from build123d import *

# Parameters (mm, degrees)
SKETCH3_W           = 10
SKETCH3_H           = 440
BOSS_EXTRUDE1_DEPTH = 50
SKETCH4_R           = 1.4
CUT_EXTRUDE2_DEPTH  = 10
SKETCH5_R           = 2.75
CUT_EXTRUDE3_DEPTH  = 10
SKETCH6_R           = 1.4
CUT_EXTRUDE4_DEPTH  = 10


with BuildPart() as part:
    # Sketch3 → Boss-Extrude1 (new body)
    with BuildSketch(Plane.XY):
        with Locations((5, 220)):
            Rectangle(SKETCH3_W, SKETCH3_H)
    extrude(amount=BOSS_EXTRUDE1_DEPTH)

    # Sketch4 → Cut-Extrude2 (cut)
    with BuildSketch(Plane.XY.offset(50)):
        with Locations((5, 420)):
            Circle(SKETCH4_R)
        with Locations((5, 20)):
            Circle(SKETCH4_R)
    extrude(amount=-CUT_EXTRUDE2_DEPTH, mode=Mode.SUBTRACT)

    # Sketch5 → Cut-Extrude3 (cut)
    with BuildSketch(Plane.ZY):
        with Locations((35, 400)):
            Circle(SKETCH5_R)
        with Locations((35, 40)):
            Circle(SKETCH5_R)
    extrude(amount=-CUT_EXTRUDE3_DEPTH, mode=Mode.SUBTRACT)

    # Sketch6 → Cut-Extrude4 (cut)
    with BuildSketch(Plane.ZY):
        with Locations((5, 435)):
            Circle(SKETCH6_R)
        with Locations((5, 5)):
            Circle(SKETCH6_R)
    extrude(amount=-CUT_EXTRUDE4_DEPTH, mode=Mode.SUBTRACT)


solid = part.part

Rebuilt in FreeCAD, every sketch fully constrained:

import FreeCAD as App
import Part
import Sketcher

V = App.Vector

doc = App.newDocument("Part")
params = doc.addObject("Spreadsheet::Sheet", "Params")
for row, (alias, value) in enumerate([
    ("sketch1_width", "10 mm"),
    ("sketch1_height", "440 mm"),
    ("pad1_length", "50 mm"),
    ("sketch2_diameter", "2.8 mm"),
    ("pocket1_length", "10 mm"),
    ("sketch3_diameter", "5.5 mm"),
    ("pocket2_length", "10 mm"),
    ("sketch4_diameter", "2.8 mm"),
    ("pocket3_length", "10 mm"),
], start=1):
    params.set(f"A{row}", alias)
    params.set(f"B{row}", "=" + value)
    params.setAlias(f"B{row}", alias)

body = doc.addObject("PartDesign::Body", "Body")

# Sketch on XY plane
sketch1 = body.newObject("Sketcher::SketchObject", "Sketch")
sketch1.AttachmentSupport = (doc.getObject("XY_Plane"), [""])
sketch1.MapMode = "FlatFace"
sketch1.addGeometry([
    Part.LineSegment(V(0, 440, 0), V(0, 0, 0)),
    Part.LineSegment(V(0, 0, 0), V(10, 0, 0)),
    Part.LineSegment(V(10, 0, 0), V(10, 440, 0)),
    Part.LineSegment(V(10, 440, 0), V(0, 440, 0)),
], False)
sketch1.addConstraint([
    Sketcher.Constraint("Coincident", 0, 2, 1, 1),
    Sketcher.Constraint("Coincident", 1, 2, 2, 1),
    Sketcher.Constraint("Coincident", 2, 2, 3, 1),
    Sketcher.Constraint("Coincident", 3, 2, 0, 1),
    Sketcher.Constraint("Vertical", 0),
    Sketcher.Constraint("Horizontal", 1),
    Sketcher.Constraint("Vertical", 2),
    Sketcher.Constraint("Horizontal", 3),
    Sketcher.Constraint("Coincident", 0, 2, -1, 1),
    Sketcher.Constraint("DistanceX", 1, 1, 1, 2, 10.0),
    Sketcher.Constraint("DistanceY", 0, 2, 0, 1, 440.0),
])
sketch1.setExpression("Constraints[9]", "Params.sketch1_width")
sketch1.setExpression("Constraints[10]", "Params.sketch1_height")
pad1 = body.newObject("PartDesign::Pad", "Pad")
pad1.Profile = sketch1
pad1.setExpression("Length", "Params.pad1_length")

# Sketch on XY plane
sketch2 = body.newObject("Sketcher::SketchObject", "Sketch001")
sketch2.AttachmentSupport = (doc.getObject("XY_Plane"), [""])
sketch2.MapMode = "FlatFace"
sketch2.AttachmentOffset = App.Placement(V(0, 0, 50), App.Rotation())
sketch2.addGeometry([
    Part.Circle(V(5, 420, 0), V(0, 0, 1), 1.4),
    Part.Circle(V(5, 20, 0), V(0, 0, 1), 1.4),
], False)
sketch2.addConstraint([
    Sketcher.Constraint("Equal", 0, 1),
    Sketcher.Constraint("Vertical", 0, 3, 1, 3),
    Sketcher.Constraint("Diameter", 0, 2.8),
    Sketcher.Constraint("DistanceX", -1, 1, 0, 3, 5.0),
    Sketcher.Constraint("DistanceY", -1, 1, 0, 3, 420.0),
    Sketcher.Constraint("DistanceY", -1, 1, 1, 3, 20.0),
])
sketch2.setExpression("Constraints[2]", "Params.sketch2_diameter")
pocket1 = body.newObject("PartDesign::Pocket", "Pocket")
pocket1.Profile = sketch2
pocket1.setExpression("Length", "Params.pocket1_length")

# Sketch on YZ plane
sketch3 = body.newObject("Sketcher::SketchObject", "Sketch002")
sketch3.AttachmentSupport = (doc.getObject("YZ_Plane"), [""])
sketch3.MapMode = "FlatFace"
sketch3.addGeometry([
    Part.Circle(V(400, 35, 0), V(0, 0, 1), 2.75),
    Part.Circle(V(40, 35, 0), V(0, 0, 1), 2.75),
], False)
sketch3.addConstraint([
    Sketcher.Constraint("Equal", 0, 1),
    Sketcher.Constraint("Horizontal", 0, 3, 1, 3),
    Sketcher.Constraint("Diameter", 0, 5.5),
    Sketcher.Constraint("DistanceX", -1, 1, 0, 3, 400.0),
    Sketcher.Constraint("DistanceY", -1, 1, 0, 3, 35.0),
    Sketcher.Constraint("DistanceX", -1, 1, 1, 3, 40.0),
])
sketch3.setExpression("Constraints[2]", "Params.sketch3_diameter")
pocket2 = body.newObject("PartDesign::Pocket", "Pocket001")
pocket2.Profile = sketch3
pocket2.setExpression("Length", "Params.pocket2_length")
pocket2.Reversed = True

# Sketch on YZ plane
sketch4 = body.newObject("Sketcher::SketchObject", "Sketch003")
sketch4.AttachmentSupport = (doc.getObject("YZ_Plane"), [""])
sketch4.MapMode = "FlatFace"
sketch4.addGeometry([
    Part.Circle(V(435, 5, 0), V(0, 0, 1), 1.4),
    Part.Circle(V(5, 5, 0), V(0, 0, 1), 1.4),
], False)
sketch4.addConstraint([
    Sketcher.Constraint("Equal", 0, 1),
    Sketcher.Constraint("Horizontal", 0, 3, 1, 3),
    Sketcher.Constraint("Diameter", 0, 2.8),
    Sketcher.Constraint("DistanceX", -1, 1, 0, 3, 435.0),
    Sketcher.Constraint("DistanceY", -1, 1, 0, 3, 5.0),
    Sketcher.Constraint("DistanceX", -1, 1, 1, 3, 5.0),
])
sketch4.setExpression("Constraints[2]", "Params.sketch4_diameter")
pocket3 = body.newObject("PartDesign::Pocket", "Pocket002")
pocket3.Profile = sketch4
pocket3.setExpression("Length", "Params.pocket3_length")
pocket3.Reversed = True

doc.recompute()
